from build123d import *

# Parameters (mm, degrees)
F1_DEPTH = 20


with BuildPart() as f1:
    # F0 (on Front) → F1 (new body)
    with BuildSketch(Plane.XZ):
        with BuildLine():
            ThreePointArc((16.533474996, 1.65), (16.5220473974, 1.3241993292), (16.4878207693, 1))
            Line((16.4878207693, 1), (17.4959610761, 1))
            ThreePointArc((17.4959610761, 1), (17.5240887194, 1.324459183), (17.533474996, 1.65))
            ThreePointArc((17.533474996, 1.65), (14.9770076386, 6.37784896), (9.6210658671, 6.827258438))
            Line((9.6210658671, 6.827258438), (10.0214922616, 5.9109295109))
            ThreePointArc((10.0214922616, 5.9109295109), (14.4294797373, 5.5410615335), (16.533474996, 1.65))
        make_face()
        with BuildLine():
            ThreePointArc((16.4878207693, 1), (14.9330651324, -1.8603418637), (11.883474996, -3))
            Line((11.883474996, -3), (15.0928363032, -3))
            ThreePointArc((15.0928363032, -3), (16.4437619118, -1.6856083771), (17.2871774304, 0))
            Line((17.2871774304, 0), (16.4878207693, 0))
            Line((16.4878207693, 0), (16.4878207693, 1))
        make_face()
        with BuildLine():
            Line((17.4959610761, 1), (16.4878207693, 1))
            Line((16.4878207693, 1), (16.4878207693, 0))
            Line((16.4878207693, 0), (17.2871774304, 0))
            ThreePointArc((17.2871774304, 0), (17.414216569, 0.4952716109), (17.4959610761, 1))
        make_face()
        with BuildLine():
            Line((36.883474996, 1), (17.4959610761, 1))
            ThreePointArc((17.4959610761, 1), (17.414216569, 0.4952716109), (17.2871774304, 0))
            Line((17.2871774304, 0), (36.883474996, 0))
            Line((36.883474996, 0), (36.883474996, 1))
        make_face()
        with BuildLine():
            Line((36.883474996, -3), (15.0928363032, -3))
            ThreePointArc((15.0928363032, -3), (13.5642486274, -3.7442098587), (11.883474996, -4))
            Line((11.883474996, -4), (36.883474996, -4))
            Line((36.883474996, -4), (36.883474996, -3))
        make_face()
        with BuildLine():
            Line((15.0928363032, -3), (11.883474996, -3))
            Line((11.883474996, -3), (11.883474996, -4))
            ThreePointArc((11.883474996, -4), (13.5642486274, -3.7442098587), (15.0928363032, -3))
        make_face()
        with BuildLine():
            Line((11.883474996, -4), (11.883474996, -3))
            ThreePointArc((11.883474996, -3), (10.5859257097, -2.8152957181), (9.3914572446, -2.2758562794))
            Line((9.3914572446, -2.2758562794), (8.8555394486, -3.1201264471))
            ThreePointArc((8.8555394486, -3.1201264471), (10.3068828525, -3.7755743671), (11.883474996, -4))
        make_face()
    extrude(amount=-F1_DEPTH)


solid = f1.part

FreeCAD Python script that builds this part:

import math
import FreeCAD as App
import Part
import Sketcher
Q = App.Units.Quantity

doc = App.newDocument("Part")
body = doc.addObject("PartDesign::Body", "Body")

# Sketch on XZ plane
sketch1 = doc.addObject("Sketcher::SketchObject", "Sketch")
body.addObject(sketch1)
sketch1.AttachmentSupport = (doc.XZ_Plane, [""])
sketch1.MapMode = "FlatFace"
sketch1.addGeometry(Part.ArcOfCircle(Part.Circle(App.Vector(11.9, 1.6, 0), App.Vector(0, 0, 1), 4.6), math.radians(-8.04), math.radians(0)), False)
sketch1.addGeometry(Part.ArcOfCircle(Part.Circle(App.Vector(11.9, 1.6, 0), App.Vector(0, 0, 1), 4.7), math.radians(-90), math.radians(-8)), False)
sketch1.addGeometry(Part.ArcOfCircle(Part.Circle(App.Vector(11.9, 1.6, 0), App.Vector(0, 0, 1), 4.6), math.radians(-122), math.radians(-90)), False)
sketch1.addGeometry(Part.LineSegment(App.Vector(9.4, -2.3, 0), App.Vector(8.9, -3.1, 0)), False)
sketch1.addGeometry(Part.ArcOfCircle(Part.Circle(App.Vector(11.9, 1.7, 0), App.Vector(0, 0, 1), 5.7), math.radians(-122), math.radians(-90)), False)
sketch1.addGeometry(Part.LineSegment(App.Vector(11.9, -4, 0), App.Vector(36.9, -4, 0)), False)
sketch1.addGeometry(Part.LineSegment(App.Vector(36.9, -4, 0), App.Vector(36.9, -3, 0)), False)
sketch1.addGeometry(Part.LineSegment(App.Vector(36.9, -3, 0), App.Vector(15.1, -3, 0)), False)
sketch1.addGeometry(Part.ArcOfCircle(Part.Circle(App.Vector(11.9, 1.6, 0), App.Vector(0, 0, 1), 5.7), math.radians(-55), math.radians(-17)), False)
sketch1.addGeometry(Part.LineSegment(App.Vector(17.3, 0, 0), App.Vector(36.9, 0, 0)), False)
sketch1.addGeometry(Part.LineSegment(App.Vector(36.9, 0, 0), App.Vector(36.9, 1, 0)), False)
sketch1.addGeometry(Part.LineSegment(App.Vector(36.9, 1, 0), App.Vector(17.5, 1, 0)), False)
sketch1.addGeometry(Part.ArcOfCircle(Part.Circle(App.Vector(11.9, 1.6, 0), App.Vector(0, 0, 1), 5.6), math.radians(-6.61), math.radians(0)), False)
sketch1.addGeometry(Part.ArcOfCircle(Part.Circle(App.Vector(11.9, 1.6, 0), App.Vector(0, 0, 1), 5.7), math.radians(0), math.radians(114)), False)
sketch1.addGeometry(Part.LineSegment(App.Vector(9.6, 6.8, 0), App.Vector(10, 5.9, 0)), False)
sketch1.addGeometry(Part.ArcOfCircle(Part.Circle(App.Vector(11.9, 1.6, 0), App.Vector(0, 0, 1), 4.7), math.radians(0), math.radians(114)), False)
sketch1.addConstraint(Sketcher.Constraint("Tangent", 0, 1, 1, 2))
sketch1.addConstraint(Sketcher.Constraint("Tangent", 1, 1, 2, 2))
sketch1.addConstraint(Sketcher.Constraint("Coincident", 2, 1, 3, 1))
sketch1.addConstraint(Sketcher.Constraint("Coincident", 3, 2, 4, 1))
sketch1.addConstraint(Sketcher.Constraint("Tangent", 4, 2, 5, 1))
sketch1.addConstraint(Sketcher.Constraint("Coincident", 5, 2, 6, 1))
sketch1.addConstraint(Sketcher.Constraint("Coincident", 6, 2, 7, 1))
sketch1.addConstraint(Sketcher.Constraint("Coincident", 7, 2, 8, 1))
sketch1.addConstraint(Sketcher.Constraint("Coincident", 8, 2, 9, 1))
sketch1.addConstraint(Sketcher.Constraint("Coincident", 9, 2, 10, 1))
sketch1.addConstraint(Sketcher.Constraint("Coincident", 10, 2, 11, 1))
sketch1.addConstraint(Sketcher.Constraint("Coincident", 11, 2, 12, 1))
sketch1.addConstraint(Sketcher.Constraint("Tangent", 12, 2, 13, 1))
sketch1.addConstraint(Sketcher.Constraint("Coincident", 13, 2, 14, 1))
sketch1.addConstraint(Sketcher.Constraint("Coincident", 14, 2, 15, 2))
sketch1.addConstraint(Sketcher.Constraint("Tangent", 15, 1, 0, 2))
sketch1.addConstraint(Sketcher.Constraint("Horizontal", 5))
sketch1.addConstraint(Sketcher.Constraint("Vertical", 6))
sketch1.addConstraint(Sketcher.Constraint("Horizontal", 7))
sketch1.addConstraint(Sketcher.Constraint("Horizontal", 9))
sketch1.addConstraint(Sketcher.Constraint("Vertical", 10))
sketch1.addConstraint(Sketcher.Constraint("Horizontal", 11))
sketch1.addConstraint(Sketcher.Constraint("Coincident", 2, 3, 0, 3))
sketch1.addConstraint(Sketcher.Constraint("Coincident", 4, 3, 0, 3))
sketch1.addConstraint(Sketcher.Constraint("Coincident", 8, 3, 0, 3))
sketch1.addConstraint(Sketcher.Constraint("Coincident", 12, 3, 0, 3))
sketch1.addConstraint(Sketcher.Constraint("Equal", 4, 8))
sketch1.addConstraint(Sketcher.Constraint("Equal", 8, 12))
sketch1.addConstraint(Sketcher.Constraint("Equal", 12, 13))
sketch1.addConstraint(Sketcher.Constraint("Equal", 2, 15))
sketch1.addConstraint(Sketcher.Constraint("PointOnObject", 8, 2, -1))
sketch1.addConstraint(Sketcher.Constraint("Horizontal", 1, 1, 6, 2))
sketch1.addConstraint(Sketcher.Constraint("Horizontal", 0, 1, 10, 2))
sketch1.addConstraint(Sketcher.Constraint("Horizontal", 15, 3, 12, 2))
sketch1.addConstraint(Sketcher.Constraint("Horizontal", 12, 2, 15, 1))
sketch1.addConstraint(Sketcher.Constraint("Vertical", 15, 3, 1, 1))
sketch1.addConstraint(Sketcher.Constraint("Vertical", 6, 2, 9, 2))
sketch1.addConstraint(Sketcher.Constraint("Equal", 6, 10))
sketch1.addConstraint(Sketcher.Constraint("DistanceX", 5, 1, 5, 2, Q("25 mm")))
sketch1.addConstraint(Sketcher.Constraint("DistanceY", 6, 1, 6, 2, Q("1 mm")))
sketch1.addConstraint(Sketcher.Constraint("Radius", 0, Q("4.65 mm")))
sketch1.addConstraint(Sketcher.Constraint("DistanceY", 1, 1, -1, 1, Q("3 mm")))
sketch1.addConstraint(Sketcher.Constraint("DistanceX", -1, 1, 0, 1, Q("16.487821 mm")))
sketch1.addConstraint(Sketcher.Constraint("DistanceX", -1, 1, 3, 2, Q("8.855539 mm")))
sketch1.addConstraint(Sketcher.Constraint("DistanceY", -1, 1, 13, 2, Q("6.827258 mm")))
sketch1.addConstraint(Sketcher.Constraint("DistanceY", -1, 1, 14, 2, Q("5.91093 mm")))
sketch1.addConstraint(Sketcher.Constraint("DistanceY", 3, 2, 2, 1, Q("0.84427 mm")))
pad1 = doc.addObject("PartDesign::Pad", "Pad")
body.addObject(pad1)
pad1.Profile = sketch1
pad1.Length = 20
pad1.Reversed = True

doc.recompute()
